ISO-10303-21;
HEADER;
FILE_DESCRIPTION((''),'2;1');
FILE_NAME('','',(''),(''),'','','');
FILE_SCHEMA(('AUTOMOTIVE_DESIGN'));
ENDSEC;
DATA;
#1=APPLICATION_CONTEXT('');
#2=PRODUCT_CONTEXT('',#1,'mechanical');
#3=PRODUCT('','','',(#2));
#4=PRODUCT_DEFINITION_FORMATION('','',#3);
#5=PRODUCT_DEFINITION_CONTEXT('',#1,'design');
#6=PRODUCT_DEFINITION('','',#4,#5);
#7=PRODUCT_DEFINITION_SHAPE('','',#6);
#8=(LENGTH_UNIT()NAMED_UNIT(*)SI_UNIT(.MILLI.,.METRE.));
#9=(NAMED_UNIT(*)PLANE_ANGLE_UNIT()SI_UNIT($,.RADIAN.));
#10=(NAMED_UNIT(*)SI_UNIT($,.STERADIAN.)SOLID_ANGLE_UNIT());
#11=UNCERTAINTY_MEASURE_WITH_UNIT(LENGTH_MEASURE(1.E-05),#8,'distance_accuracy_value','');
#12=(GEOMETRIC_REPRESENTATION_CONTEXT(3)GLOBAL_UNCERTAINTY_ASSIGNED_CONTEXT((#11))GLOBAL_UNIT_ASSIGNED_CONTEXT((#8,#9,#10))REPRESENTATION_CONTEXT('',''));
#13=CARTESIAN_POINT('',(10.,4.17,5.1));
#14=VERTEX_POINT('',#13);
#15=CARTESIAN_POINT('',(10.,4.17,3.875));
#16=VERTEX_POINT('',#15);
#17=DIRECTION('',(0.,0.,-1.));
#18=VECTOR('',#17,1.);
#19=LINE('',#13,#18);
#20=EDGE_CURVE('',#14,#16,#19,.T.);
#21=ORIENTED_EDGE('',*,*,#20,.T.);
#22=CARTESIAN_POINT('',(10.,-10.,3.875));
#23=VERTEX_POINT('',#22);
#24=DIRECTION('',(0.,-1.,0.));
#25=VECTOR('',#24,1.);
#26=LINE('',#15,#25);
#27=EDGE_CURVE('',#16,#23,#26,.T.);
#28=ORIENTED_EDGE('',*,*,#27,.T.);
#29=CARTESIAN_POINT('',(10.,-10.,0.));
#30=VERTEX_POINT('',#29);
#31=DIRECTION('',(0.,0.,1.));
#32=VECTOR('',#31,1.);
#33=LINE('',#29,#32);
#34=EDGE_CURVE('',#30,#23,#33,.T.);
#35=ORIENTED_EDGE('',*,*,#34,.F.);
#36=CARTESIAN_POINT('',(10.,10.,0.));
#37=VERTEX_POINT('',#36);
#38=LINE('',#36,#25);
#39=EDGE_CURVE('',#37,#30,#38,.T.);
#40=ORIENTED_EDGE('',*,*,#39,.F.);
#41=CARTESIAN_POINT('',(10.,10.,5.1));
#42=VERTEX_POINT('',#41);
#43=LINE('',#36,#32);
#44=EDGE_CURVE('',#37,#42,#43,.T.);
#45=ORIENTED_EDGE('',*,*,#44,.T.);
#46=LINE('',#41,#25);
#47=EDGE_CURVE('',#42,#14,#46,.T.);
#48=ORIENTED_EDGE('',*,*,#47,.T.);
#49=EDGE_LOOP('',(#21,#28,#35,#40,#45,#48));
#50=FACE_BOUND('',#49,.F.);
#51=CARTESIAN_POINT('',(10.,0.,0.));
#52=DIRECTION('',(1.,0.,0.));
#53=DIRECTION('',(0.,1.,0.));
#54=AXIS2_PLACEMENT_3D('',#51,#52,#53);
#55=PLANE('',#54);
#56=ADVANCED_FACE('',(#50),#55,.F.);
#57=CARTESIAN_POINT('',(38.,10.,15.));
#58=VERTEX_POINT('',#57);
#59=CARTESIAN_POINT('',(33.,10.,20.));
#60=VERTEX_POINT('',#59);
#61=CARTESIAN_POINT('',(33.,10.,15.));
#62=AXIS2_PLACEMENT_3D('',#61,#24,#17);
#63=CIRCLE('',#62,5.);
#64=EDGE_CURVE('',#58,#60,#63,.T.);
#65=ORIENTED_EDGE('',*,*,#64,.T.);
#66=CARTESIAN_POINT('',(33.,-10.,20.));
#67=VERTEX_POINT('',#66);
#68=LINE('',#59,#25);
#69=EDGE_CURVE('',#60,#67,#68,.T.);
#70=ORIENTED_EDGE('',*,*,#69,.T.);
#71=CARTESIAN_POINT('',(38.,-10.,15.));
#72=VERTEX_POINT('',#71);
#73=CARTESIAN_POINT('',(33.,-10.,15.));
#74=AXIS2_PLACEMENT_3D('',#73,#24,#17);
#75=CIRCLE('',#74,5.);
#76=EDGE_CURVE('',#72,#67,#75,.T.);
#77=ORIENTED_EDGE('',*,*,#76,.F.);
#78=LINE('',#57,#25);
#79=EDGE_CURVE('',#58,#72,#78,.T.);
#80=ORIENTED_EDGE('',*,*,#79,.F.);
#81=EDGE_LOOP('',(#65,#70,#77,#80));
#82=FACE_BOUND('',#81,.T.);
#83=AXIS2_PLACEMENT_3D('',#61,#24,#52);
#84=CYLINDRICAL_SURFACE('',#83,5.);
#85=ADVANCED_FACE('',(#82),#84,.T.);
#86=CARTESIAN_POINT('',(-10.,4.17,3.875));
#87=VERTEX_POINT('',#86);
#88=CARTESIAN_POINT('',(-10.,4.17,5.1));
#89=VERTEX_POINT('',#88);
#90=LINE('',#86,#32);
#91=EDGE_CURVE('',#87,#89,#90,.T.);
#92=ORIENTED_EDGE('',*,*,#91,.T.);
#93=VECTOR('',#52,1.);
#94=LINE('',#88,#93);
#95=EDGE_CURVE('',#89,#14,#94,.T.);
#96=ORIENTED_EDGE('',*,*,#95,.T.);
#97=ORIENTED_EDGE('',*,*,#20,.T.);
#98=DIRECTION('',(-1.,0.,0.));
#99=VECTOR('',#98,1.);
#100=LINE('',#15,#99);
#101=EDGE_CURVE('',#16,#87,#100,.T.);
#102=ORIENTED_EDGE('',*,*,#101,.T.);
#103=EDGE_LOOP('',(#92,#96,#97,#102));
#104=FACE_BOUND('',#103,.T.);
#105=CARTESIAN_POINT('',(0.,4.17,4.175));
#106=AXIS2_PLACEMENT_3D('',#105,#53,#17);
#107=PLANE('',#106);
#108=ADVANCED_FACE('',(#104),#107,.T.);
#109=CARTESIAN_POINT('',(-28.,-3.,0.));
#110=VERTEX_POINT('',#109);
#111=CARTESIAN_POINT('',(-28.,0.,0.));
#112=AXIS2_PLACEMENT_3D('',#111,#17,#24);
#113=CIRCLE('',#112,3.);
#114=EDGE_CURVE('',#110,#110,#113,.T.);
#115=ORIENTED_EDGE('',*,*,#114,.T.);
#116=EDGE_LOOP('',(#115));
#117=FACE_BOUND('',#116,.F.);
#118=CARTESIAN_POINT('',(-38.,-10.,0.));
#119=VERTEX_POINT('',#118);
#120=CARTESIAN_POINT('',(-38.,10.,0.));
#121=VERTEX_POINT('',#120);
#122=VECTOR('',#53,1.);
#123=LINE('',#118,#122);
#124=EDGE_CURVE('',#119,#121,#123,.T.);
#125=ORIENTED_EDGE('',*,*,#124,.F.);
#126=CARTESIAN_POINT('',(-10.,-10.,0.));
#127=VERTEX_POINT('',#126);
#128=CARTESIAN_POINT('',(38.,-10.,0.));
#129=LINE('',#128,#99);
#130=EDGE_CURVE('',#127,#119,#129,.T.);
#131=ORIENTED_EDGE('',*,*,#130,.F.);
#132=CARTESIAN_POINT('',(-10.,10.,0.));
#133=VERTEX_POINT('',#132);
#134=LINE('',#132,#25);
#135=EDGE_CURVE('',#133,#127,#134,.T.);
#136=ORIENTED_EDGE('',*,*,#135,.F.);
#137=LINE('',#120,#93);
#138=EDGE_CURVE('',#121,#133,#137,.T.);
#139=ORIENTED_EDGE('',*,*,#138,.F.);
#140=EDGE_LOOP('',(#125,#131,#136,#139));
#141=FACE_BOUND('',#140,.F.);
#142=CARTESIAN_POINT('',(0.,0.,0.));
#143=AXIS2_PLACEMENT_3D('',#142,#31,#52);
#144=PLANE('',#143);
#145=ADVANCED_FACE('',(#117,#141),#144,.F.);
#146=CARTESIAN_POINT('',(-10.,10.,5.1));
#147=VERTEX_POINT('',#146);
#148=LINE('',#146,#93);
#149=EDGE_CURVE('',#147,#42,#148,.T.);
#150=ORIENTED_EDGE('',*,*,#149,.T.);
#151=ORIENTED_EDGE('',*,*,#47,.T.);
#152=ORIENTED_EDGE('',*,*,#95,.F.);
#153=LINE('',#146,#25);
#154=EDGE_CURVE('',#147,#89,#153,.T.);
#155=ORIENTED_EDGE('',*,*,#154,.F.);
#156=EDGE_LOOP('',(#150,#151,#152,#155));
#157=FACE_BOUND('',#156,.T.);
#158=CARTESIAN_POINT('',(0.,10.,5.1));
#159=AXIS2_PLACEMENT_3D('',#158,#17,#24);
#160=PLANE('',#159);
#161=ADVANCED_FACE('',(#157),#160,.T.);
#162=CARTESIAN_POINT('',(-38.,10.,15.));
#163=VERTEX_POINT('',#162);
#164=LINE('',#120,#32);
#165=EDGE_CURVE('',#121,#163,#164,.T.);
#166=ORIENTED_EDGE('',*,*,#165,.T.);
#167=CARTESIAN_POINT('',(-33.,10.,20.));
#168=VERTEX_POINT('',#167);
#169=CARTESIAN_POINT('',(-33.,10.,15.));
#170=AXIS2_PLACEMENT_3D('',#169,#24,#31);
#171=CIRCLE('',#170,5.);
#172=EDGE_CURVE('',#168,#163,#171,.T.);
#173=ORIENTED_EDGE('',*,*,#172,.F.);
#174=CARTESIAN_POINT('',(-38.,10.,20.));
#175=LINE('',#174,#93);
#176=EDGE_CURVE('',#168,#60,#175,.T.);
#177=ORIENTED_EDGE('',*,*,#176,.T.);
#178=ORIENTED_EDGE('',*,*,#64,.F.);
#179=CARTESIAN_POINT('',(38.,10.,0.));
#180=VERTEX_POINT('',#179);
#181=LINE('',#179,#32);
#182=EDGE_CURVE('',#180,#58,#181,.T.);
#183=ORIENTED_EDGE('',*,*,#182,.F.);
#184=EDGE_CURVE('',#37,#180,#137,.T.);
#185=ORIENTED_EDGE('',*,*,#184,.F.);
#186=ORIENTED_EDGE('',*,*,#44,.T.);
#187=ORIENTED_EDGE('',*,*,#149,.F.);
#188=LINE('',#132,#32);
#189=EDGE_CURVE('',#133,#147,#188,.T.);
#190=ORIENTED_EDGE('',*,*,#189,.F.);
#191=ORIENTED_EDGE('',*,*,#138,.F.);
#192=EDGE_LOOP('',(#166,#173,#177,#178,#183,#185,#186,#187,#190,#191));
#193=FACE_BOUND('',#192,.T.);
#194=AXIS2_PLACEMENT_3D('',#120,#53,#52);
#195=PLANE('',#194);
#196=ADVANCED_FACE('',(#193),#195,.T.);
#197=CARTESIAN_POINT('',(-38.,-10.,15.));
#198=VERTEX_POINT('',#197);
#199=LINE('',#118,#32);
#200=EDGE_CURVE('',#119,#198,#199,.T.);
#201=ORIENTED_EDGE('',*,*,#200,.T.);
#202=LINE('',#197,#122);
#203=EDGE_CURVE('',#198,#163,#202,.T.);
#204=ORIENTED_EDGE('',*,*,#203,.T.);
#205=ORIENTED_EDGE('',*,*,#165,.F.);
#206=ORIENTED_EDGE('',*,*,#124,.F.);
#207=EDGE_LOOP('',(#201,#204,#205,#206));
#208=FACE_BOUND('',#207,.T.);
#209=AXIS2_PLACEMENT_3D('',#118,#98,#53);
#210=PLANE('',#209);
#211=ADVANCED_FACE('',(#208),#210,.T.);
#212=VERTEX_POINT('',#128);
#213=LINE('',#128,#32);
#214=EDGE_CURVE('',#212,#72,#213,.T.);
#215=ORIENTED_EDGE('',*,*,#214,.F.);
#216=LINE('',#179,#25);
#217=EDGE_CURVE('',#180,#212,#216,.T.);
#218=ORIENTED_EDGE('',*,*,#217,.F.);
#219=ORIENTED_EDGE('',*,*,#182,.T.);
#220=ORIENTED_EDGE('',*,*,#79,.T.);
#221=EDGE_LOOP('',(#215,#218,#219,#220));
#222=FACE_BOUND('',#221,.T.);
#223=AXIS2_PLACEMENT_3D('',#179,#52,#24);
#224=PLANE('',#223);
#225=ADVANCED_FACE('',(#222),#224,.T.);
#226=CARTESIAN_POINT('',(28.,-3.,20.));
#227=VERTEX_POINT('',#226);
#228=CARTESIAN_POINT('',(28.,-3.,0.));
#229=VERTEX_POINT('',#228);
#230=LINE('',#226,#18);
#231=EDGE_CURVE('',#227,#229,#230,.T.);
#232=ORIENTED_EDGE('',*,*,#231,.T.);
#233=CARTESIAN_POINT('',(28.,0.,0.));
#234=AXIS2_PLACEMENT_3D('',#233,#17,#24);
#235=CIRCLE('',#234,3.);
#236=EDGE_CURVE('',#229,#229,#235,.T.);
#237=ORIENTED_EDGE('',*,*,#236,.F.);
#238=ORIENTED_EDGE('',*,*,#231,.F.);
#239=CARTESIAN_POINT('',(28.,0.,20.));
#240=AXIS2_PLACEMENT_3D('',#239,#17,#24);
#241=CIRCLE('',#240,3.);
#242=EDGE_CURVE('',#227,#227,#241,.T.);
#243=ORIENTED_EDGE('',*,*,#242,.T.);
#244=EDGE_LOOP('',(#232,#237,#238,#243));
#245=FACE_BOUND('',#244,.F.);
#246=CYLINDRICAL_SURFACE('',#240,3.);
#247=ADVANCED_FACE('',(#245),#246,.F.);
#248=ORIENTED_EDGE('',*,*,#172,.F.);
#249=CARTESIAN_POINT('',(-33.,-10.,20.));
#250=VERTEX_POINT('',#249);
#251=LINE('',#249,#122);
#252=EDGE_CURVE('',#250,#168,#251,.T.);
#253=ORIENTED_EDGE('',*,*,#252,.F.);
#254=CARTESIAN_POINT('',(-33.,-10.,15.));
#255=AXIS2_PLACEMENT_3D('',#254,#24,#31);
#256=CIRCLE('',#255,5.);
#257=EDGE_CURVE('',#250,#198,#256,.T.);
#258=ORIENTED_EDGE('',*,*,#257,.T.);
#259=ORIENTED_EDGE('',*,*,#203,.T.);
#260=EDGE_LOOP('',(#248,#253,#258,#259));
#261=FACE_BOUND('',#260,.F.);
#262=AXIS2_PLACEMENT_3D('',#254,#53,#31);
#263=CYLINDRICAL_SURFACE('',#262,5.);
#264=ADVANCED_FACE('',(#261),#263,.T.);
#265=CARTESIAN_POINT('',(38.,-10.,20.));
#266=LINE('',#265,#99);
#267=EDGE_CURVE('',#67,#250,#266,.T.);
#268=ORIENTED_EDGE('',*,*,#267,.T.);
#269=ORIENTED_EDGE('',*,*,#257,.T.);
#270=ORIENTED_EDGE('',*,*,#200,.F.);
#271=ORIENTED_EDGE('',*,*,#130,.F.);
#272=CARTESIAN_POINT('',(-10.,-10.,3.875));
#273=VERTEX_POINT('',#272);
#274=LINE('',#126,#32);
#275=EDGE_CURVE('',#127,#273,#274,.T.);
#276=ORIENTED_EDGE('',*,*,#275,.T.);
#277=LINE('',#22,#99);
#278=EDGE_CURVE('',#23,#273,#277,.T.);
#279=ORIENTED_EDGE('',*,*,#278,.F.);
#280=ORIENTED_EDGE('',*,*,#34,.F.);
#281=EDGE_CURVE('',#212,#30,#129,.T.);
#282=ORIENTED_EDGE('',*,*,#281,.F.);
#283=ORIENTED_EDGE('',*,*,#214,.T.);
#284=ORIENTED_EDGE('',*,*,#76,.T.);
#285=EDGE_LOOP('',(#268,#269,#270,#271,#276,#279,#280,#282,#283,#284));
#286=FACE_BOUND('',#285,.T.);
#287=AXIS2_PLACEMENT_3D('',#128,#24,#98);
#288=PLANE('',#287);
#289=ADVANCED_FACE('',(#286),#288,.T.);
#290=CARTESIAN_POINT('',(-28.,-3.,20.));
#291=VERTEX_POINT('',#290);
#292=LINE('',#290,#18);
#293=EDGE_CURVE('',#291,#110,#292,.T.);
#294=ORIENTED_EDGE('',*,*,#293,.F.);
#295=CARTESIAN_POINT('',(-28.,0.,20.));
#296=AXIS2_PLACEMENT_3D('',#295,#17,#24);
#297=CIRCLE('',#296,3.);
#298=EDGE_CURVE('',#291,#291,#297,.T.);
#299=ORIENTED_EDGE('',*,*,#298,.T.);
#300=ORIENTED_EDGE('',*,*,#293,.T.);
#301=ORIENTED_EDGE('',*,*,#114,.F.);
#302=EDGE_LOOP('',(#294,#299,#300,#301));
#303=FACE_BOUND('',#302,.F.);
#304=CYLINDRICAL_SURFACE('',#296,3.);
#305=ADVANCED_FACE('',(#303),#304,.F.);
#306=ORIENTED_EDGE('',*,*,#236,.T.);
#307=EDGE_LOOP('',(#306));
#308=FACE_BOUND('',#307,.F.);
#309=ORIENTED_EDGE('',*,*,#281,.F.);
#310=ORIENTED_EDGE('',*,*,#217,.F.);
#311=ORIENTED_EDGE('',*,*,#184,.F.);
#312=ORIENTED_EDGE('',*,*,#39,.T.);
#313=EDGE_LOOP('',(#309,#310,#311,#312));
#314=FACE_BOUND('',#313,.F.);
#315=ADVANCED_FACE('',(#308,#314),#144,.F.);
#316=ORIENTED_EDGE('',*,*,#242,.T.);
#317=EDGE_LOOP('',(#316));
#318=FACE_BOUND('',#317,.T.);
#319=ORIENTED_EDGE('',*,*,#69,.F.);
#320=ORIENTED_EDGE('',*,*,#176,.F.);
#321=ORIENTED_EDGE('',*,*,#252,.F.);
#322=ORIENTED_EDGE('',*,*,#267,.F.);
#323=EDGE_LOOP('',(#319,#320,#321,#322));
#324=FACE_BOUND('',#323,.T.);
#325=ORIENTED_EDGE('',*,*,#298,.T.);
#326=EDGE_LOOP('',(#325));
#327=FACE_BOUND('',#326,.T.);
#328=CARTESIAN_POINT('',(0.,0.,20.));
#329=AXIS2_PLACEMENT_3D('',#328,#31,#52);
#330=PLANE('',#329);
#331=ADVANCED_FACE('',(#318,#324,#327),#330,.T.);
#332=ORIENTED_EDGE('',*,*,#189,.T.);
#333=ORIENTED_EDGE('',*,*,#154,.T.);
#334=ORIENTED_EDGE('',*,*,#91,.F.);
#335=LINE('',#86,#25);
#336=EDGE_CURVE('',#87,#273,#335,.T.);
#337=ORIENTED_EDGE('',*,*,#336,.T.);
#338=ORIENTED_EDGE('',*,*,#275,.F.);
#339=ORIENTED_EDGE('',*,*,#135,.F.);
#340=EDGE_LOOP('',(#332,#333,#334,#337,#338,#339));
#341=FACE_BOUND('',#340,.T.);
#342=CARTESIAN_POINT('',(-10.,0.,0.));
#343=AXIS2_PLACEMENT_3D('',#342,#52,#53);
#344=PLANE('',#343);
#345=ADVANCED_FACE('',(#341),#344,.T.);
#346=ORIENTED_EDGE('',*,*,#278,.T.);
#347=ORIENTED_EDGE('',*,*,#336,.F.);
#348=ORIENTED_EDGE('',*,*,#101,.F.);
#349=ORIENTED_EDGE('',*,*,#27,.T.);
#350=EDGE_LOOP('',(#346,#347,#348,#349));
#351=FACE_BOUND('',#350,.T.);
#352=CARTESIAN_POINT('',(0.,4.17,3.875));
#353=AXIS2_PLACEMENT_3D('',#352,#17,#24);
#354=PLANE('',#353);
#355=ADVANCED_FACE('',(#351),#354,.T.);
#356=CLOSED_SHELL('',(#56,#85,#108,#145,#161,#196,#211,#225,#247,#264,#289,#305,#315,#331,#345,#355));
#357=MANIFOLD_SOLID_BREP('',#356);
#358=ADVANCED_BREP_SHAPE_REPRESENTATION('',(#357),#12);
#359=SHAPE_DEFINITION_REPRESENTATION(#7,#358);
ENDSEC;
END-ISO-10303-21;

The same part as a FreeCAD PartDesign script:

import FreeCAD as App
import Part
import Sketcher
from FreeCAD import Vector
Q = App.Units.Quantity


def edges_at(feature, points):
    """Names of the edges that pass closest to the given points."""
    edges = feature.Shape.Edges
    near = lambda p: min(range(len(edges)), key=lambda i: edges[i].distToShape(Part.Vertex(*p))[0])
    return sorted({f"Edge{near(p) + 1}" for p in points})


def add_polygon(sketch, points):
    """Adds a closed chain of lines whose ends are joined by coincident constraints."""
    first, n = sketch.GeometryCount, len(points)
    for a, b in zip(points, points[1:] + points[:1]):
        sketch.addGeometry(Part.LineSegment(App.Vector(*a, 0), App.Vector(*b, 0)), False)
    for i in range(n):
        sketch.addConstraint(Sketcher.Constraint("Coincident", first + i, 2, first + (i + 1) % n, 1))

doc = App.newDocument("Part")
body = doc.addObject("PartDesign::Body", "Body")

sketch1 = doc.addObject("Sketcher::SketchObject", "Sketch")
body.addObject(sketch1)
sketch1.AttachmentSupport = (doc.XY_Plane, [""])
sketch1.MapMode = "FlatFace"
add_polygon(sketch1, [(38, 10), (-38, 10), (-38, -10), (38, -10)])
sketch1.addConstraint(Sketcher.Constraint("Horizontal", 0))
sketch1.addConstraint(Sketcher.Constraint("Vertical", 1))
sketch1.addConstraint(Sketcher.Constraint("Horizontal", 2))
sketch1.addConstraint(Sketcher.Constraint("Vertical", 3))
sketch1.addConstraint(Sketcher.Constraint("Symmetric", 0, 2, 2, 2, -1, 1))
sketch1.addConstraint(Sketcher.Constraint("DistanceX", 0, 2, 0, 1, Q("76 mm")))
sketch1.addConstraint(Sketcher.Constraint("DistanceY", 1, 2, 1, 1, Q("20 mm")))
pad1 = doc.addObject("PartDesign::Pad", "Pad")
body.addObject(pad1)
pad1.Profile = sketch1
pad1.Length = 20

sketch2 = doc.addObject("Sketcher::SketchObject", "Sketch001")
body.addObject(sketch2)
sketch2.AttachmentSupport = (doc.YZ_Plane, [""])
sketch2.MapMode = "FlatFace"
add_polygon(sketch2, [(-10, 0), (10, 0), (10, 5.1), (4.17, 5.1), (4.17, 3.875), (-10, 3.875)])
sketch2.addConstraint(Sketcher.Constraint("Horizontal", 0))
sketch2.addConstraint(Sketcher.Constraint("Vertical", 1))
sketch2.addConstraint(Sketcher.Constraint("Horizontal", 2))
sketch2.addConstraint(Sketcher.Constraint("Vertical", 3))
sketch2.addConstraint(Sketcher.Constraint("Horizontal", 4))
sketch2.addConstraint(Sketcher.Constraint("Vertical", 5))
sketch2.addConstraint(Sketcher.Constraint("Symmetric", 0, 2, 5, 2, -1, 1))
sketch2.addConstraint(Sketcher.Constraint("DistanceX", 0, 1, 0, 2, Q("20 mm")))
sketch2.addConstraint(Sketcher.Constraint("DistanceY", 1, 1, 1, 2, Q("5.1 mm")))
sketch2.addConstraint(Sketcher.Constraint("DistanceX", 2, 2, 2, 1, Q("5.83 mm")))
sketch2.addConstraint(Sketcher.Constraint("DistanceY", 3, 2, 3, 1, Q("1.225 mm")))
pocket1 = doc.addObject("PartDesign::Pocket", "Pocket")
body.addObject(pocket1)
pocket1.Profile = sketch2
pocket1.Length = 20
pocket1.Midplane = True

sketch3 = doc.addObject("Sketcher::SketchObject", "Sketch002")
body.addObject(sketch3)
sketch3.AttachmentSupport = (doc.XY_Plane, [""])
sketch3.MapMode = "FlatFace"
sketch3.AttachmentOffset = App.Placement(Vector(0, 0, 20), App.Rotation())
sketch3.addGeometry(Part.Circle(Vector(-28, 0, 0), Vector(0, 0, 1), 3), False)
sketch3.addGeometry(Part.Circle(Vector(28, 0, 0), Vector(0, 0, 1), 3), False)
sketch3.addConstraint(Sketcher.Constraint("Equal", 0, 1))
sketch3.addConstraint(Sketcher.Constraint("Symmetric", 0, 3, 1, 3, -1, 1))
sketch3.addConstraint(Sketcher.Constraint("PointOnObject", 0, 3, -1))
sketch3.addConstraint(Sketcher.Constraint("Diameter", 0, Q("6 mm")))
sketch3.addConstraint(Sketcher.Constraint("DistanceX", 0, 3, -1, 1, Q("28 mm")))
doc.recompute()
hole = doc.addObject("PartDesign::Hole", "Hole")
body.addObject(hole)
hole.Profile = sketch3
hole.ThreadType = "None"
hole.Diameter = 6
hole.DepthType = "ThroughAll"
doc.recompute()

fillet = doc.addObject("PartDesign::Fillet", "Fillet")
body.addObject(fillet)
fillet.Base = (hole, edges_at(hole, [(-38, 0, 20), (38, 0, 20)]))
fillet.Radius = 5

doc.recompute()
